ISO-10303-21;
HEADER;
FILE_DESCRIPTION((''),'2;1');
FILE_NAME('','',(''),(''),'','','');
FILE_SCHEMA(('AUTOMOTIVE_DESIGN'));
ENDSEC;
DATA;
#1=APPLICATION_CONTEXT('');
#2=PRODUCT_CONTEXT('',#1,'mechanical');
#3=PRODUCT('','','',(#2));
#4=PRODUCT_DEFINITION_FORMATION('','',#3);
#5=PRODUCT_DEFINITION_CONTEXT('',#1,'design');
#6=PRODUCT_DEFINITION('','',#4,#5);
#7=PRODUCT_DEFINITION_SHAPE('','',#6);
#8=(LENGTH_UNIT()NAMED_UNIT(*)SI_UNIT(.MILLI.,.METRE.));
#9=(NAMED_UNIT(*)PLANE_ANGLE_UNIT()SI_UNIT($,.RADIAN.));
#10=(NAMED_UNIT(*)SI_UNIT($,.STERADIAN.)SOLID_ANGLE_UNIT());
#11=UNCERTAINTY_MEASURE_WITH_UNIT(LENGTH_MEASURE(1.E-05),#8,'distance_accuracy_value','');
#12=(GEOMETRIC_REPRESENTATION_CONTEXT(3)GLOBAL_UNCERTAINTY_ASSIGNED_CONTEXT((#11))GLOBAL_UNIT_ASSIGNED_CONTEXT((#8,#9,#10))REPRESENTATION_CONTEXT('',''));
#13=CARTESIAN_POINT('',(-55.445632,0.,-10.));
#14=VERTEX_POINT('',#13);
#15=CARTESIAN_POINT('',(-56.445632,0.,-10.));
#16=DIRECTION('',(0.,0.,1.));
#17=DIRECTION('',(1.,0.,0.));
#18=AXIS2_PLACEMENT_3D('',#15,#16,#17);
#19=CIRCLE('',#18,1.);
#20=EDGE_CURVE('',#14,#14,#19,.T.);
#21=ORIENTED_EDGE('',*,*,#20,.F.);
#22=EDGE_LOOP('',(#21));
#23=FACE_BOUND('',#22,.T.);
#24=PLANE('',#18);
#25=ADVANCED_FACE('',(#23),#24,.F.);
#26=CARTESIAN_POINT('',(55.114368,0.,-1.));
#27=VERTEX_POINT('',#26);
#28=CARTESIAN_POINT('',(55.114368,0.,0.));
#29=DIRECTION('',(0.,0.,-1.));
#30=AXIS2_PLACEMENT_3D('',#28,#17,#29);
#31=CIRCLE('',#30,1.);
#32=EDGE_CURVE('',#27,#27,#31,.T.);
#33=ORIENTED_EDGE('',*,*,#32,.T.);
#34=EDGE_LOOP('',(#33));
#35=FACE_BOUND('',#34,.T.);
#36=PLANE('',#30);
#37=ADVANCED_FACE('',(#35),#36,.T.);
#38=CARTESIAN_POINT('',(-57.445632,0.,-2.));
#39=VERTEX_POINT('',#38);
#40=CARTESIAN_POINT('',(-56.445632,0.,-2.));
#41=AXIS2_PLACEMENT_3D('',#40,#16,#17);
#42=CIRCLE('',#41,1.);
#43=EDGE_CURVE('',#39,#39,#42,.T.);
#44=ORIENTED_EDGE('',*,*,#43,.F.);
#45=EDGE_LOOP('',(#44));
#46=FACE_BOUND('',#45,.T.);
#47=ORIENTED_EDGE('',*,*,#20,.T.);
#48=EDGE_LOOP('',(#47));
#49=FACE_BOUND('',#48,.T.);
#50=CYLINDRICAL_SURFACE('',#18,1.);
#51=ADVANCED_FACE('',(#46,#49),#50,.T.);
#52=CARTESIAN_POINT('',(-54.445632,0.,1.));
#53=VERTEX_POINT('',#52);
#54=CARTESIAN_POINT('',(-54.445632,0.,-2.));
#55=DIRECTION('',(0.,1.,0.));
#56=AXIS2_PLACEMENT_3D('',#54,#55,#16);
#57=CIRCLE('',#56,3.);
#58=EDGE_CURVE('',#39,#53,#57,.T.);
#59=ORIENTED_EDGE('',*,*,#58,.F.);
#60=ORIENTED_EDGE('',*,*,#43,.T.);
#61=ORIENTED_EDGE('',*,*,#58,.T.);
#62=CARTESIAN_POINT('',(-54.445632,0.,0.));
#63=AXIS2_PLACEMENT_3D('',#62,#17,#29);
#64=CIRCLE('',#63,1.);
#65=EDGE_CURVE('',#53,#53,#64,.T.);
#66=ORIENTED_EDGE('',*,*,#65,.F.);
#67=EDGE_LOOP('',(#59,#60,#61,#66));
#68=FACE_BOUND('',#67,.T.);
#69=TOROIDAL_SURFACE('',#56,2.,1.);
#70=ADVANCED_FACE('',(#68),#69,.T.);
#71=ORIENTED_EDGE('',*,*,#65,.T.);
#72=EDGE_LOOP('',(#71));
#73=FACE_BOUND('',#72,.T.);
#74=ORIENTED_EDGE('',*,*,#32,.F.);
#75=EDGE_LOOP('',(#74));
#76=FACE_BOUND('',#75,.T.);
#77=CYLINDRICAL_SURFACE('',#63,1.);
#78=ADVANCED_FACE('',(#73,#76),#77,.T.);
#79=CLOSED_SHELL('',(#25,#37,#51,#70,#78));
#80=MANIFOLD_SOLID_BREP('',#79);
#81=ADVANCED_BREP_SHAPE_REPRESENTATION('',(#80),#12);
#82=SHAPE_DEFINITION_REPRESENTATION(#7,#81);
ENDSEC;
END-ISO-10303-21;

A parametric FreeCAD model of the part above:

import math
import FreeCAD as App
import Part
import Sketcher

V = App.Vector
Q = App.Units.Quantity

doc = App.newDocument("Part")
body = doc.addObject("PartDesign::Body", "Body")

# Sketch on YZ plane
sketch1 = body.newObject("Sketcher::SketchObject", "Sketch")
sketch1.AttachmentSupport = (doc.getObject("YZ_Plane"), [""])
sketch1.MapMode = "FlatFace"
sketch1.AttachmentOffset = App.Placement(V(0, 0, 55.114368), App.Rotation())
sketch1.addGeometry(Part.Circle(V(0, 0, 0), V(0, 0, 1), 1), False)
sketch1.addConstraint([
    Sketcher.Constraint("Coincident", 0, 3, -1, 1),
    Sketcher.Constraint("Diameter", 0, Q("2 mm")),
])

# Sketch on XZ plane
sketch2 = body.newObject("Sketcher::SketchObject", "Sketch001")
sketch2.AttachmentSupport = (doc.getObject("XZ_Plane"), [""])
sketch2.MapMode = "FlatFace"
sketch2.addGeometry([
    Part.LineSegment(V(55.114368, 0, 0), V(-54.445632, 0, 0)),
    Part.ArcOfCircle(Part.Circle(V(-54.445632, -2, 0), V(0, 0, 1), 2), math.radians(90), math.radians(180)),
    Part.LineSegment(V(-56.445632, -2, 0), V(-56.445632, -10, 0)),
], False)
sketch2.addConstraint([
    Sketcher.Constraint("Tangent", 0, 2, 1, 1),
    Sketcher.Constraint("Tangent", 1, 2, 2, 1),
    Sketcher.Constraint("Horizontal", 0),
    Sketcher.Constraint("Vertical", 2),
    Sketcher.Constraint("PointOnObject", 0, 1, -1),
    Sketcher.Constraint("Radius", 1, Q("2 mm")),
    Sketcher.Constraint("DistanceY", 2, 2, 2, 1, Q("8 mm")),
    Sketcher.Constraint("DistanceX", 0, 2, 0, 1, Q("109.56 mm")),
    Sketcher.Constraint("DistanceX", 1, 3, -1, 1, Q("54.445632 mm")),
])
doc.recompute()

additivepipe = body.newObject("PartDesign::AdditivePipe", "AdditivePipe")
additivepipe.Profile = sketch1
additivepipe.Spine = (sketch2, ["Edge1", "Edge2", "Edge3"])

doc.recompute()
